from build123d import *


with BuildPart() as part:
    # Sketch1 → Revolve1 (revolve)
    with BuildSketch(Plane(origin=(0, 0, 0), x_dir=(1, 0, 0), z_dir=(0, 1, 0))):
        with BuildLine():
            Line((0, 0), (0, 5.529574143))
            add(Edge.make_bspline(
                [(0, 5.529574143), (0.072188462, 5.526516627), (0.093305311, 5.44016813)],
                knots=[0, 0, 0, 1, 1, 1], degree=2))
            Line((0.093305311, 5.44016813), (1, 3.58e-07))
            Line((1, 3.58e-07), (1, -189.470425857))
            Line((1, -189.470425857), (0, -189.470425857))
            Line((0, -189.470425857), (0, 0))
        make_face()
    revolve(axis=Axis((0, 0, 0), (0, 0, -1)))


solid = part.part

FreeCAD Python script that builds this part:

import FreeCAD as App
import Part
import Sketcher

V = App.Vector
Q = App.Units.Quantity

doc = App.newDocument("Part")
body = doc.addObject("PartDesign::Body", "Body")

# Sketch on XZ plane
sketch1 = body.newObject("Sketcher::SketchObject", "Sketch")
sketch1.AttachmentSupport = (doc.getObject("XZ_Plane"), [""])
sketch1.MapMode = "FlatFace"
sketch1.addGeometry(Part.BSplineCurve([V(0, -5.529574, 0), V(0.072188, -5.526517, 0), V(0.093305, -5.440168, 0)], [3, 3], [0, 1], False, 2, [1, 1, 1], False), False)
sketch1.addGeometry(Part.LineSegment(V(0, -5.529574, 0), V(0, 189.470426, 0)), False)
sketch1.addGeometry(Part.LineSegment(V(0, 189.470426, 0), V(1, 189.470426, 0)), False)
sketch1.addGeometry(Part.LineSegment(V(1, 189.470426, 0), V(1, 0, 0)), False)
sketch1.addGeometry(Part.LineSegment(V(1, 0, 0), V(0.093305, -5.440168, 0)), False)
sketch1.addConstraint(Sketcher.Constraint("Block", 0))
sketch1.addConstraint(Sketcher.Constraint("Coincident", 0, 1, 1, 1))
sketch1.addConstraint(Sketcher.Constraint("Coincident", 1, 2, 2, 1))
sketch1.addConstraint(Sketcher.Constraint("Coincident", 2, 2, 3, 1))
sketch1.addConstraint(Sketcher.Constraint("Coincident", 3, 2, 4, 1))
sketch1.addConstraint(Sketcher.Constraint("Coincident", 4, 2, 0, 2))
sketch1.addConstraint(Sketcher.Constraint("Vertical", 1))
sketch1.addConstraint(Sketcher.Constraint("Horizontal", 2))
sketch1.addConstraint(Sketcher.Constraint("Vertical", 3))
sketch1.addConstraint(Sketcher.Constraint("PointOnObject", 3, 2, -1))
sketch1.addConstraint(Sketcher.Constraint("DistanceX", 2, 1, 2, 2, Q("1 mm")))
sketch1.addConstraint(Sketcher.Constraint("DistanceY", 1, 1, 1, 2, Q("195 mm")))
revolution = body.newObject("PartDesign::Revolution", "Revolution")
revolution.Profile = sketch1
revolution.ReferenceAxis = (sketch1, ["V_Axis"])
revolution.Angle = 360

doc.recompute()
